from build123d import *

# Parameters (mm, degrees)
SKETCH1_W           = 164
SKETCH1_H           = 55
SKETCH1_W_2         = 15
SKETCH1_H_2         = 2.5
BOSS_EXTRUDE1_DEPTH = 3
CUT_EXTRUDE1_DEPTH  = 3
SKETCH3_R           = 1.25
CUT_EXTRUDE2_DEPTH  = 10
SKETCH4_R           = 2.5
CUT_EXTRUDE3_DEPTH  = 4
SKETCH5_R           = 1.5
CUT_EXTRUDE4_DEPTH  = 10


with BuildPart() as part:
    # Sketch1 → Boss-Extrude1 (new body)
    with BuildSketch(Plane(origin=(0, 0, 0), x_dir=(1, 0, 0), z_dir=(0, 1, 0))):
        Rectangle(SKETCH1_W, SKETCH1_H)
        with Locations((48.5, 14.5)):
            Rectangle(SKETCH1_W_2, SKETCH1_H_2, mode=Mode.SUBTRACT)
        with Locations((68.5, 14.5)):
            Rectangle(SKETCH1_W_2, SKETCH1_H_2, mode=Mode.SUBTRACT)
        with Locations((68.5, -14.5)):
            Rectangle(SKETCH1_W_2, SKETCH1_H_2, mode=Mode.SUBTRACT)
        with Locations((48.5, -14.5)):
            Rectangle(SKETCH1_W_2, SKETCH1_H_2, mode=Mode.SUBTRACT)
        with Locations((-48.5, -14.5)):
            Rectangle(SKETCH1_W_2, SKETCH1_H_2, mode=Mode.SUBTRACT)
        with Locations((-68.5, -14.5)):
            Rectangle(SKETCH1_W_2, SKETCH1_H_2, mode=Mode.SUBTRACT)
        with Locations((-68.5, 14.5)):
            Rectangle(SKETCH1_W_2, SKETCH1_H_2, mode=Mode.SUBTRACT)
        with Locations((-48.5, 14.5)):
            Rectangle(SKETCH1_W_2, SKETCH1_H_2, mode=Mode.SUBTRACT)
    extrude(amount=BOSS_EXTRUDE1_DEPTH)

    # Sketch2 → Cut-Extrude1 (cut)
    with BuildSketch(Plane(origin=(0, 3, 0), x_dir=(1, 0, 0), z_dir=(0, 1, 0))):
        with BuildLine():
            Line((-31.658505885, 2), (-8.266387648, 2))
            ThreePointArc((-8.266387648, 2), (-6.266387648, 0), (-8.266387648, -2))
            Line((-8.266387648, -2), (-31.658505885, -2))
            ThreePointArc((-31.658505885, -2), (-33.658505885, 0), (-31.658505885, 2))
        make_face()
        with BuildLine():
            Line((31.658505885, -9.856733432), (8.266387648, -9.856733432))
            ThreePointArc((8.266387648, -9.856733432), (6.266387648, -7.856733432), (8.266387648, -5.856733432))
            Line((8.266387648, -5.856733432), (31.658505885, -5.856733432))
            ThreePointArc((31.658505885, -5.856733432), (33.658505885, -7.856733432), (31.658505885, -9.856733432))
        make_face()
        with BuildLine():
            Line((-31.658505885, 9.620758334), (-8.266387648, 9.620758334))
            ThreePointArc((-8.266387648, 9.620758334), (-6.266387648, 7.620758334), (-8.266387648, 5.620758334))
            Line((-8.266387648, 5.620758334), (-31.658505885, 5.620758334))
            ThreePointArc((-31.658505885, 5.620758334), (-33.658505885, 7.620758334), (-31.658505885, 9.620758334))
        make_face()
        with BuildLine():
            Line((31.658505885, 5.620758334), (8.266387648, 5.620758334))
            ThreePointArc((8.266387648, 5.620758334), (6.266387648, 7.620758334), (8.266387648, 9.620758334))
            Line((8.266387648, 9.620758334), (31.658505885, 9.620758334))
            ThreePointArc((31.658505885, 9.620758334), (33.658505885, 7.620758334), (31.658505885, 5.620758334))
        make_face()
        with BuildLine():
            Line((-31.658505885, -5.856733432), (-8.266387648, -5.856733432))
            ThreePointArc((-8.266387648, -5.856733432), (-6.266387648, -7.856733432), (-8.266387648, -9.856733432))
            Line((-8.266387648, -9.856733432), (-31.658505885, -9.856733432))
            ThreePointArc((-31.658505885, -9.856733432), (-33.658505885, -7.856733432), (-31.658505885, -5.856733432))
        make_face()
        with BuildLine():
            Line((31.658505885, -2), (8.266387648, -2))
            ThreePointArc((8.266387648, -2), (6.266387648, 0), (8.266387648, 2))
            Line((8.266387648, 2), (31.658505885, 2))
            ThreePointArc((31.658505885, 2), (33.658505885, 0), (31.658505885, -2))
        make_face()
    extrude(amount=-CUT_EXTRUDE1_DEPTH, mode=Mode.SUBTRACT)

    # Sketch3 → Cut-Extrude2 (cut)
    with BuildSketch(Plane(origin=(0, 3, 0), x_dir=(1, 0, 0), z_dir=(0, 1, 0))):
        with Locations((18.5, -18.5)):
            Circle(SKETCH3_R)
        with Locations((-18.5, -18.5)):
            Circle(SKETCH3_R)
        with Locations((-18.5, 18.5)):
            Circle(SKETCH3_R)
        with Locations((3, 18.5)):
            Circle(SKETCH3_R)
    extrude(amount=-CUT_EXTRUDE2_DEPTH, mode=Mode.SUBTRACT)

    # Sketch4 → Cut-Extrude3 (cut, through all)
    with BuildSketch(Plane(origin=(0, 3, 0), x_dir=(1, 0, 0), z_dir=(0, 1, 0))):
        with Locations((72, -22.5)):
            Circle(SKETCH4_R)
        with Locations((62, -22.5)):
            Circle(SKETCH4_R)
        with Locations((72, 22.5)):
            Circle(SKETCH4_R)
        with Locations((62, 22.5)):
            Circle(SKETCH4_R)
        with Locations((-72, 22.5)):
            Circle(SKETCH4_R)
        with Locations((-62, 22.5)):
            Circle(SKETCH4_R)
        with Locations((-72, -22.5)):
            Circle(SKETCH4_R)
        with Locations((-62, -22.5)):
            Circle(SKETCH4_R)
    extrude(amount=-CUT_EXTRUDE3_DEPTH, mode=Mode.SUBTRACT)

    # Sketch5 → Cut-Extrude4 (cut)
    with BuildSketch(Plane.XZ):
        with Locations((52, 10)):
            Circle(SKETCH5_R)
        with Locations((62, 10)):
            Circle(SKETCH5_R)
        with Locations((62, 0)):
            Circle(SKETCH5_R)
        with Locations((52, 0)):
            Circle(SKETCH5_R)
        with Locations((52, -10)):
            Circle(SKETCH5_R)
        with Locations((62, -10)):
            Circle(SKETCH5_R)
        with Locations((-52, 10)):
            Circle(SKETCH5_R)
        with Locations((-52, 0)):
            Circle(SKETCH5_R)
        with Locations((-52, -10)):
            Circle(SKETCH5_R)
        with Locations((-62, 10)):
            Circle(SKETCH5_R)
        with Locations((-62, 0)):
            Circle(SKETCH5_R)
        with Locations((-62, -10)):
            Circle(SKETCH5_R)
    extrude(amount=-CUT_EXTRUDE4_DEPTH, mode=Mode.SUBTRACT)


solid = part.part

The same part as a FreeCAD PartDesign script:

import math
import FreeCAD as App
import Part
import Sketcher

V = App.Vector
Q = App.Units.Quantity

doc = App.newDocument("Part")
body = doc.addObject("PartDesign::Body", "Body")

# Sketch on XZ plane
sketch1 = body.newObject("Sketcher::SketchObject", "Sketch")
sketch1.AttachmentSupport = (doc.getObject("XZ_Plane"), [""])
sketch1.MapMode = "FlatFace"
sketch1.addGeometry(Part.LineSegment(V(-82, -27.5, 0), V(-82, 27.5, 0)), False)
sketch1.addGeometry(Part.LineSegment(V(-82, 27.5, 0), V(82, 27.5, 0)), False)
sketch1.addGeometry(Part.LineSegment(V(82, 27.5, 0), V(82, -27.5, 0)), False)
sketch1.addGeometry(Part.LineSegment(V(82, -27.5, 0), V(-82, -27.5, 0)), False)
sketch1.addGeometry(Part.LineSegment(V(-61, 15.8, 0), V(-76, 15.8, 0)), False)
sketch1.addGeometry(Part.LineSegment(V(-76, 15.8, 0), V(-76, 13.2, 0)), False)
sketch1.addGeometry(Part.LineSegment(V(-76, 13.2, 0), V(-61, 13.2, 0)), False)
sketch1.addGeometry(Part.LineSegment(V(-61, 13.2, 0), V(-61, 15.8, 0)), False)
sketch1.addGeometry(Part.LineSegment(V(-41, 15.8, 0), V(-56, 15.8, 0)), False)
sketch1.addGeometry(Part.LineSegment(V(-56, 15.8, 0), V(-56, 13.2, 0)), False)
sketch1.addGeometry(Part.LineSegment(V(-56, 13.2, 0), V(-41, 13.2, 0)), False)
sketch1.addGeometry(Part.LineSegment(V(-41, 13.2, 0), V(-41, 15.8, 0)), False)
sketch1.addGeometry(Part.LineSegment(V(56, 15.8, 0), V(41, 15.8, 0)), False)
sketch1.addGeometry(Part.LineSegment(V(41, 15.8, 0), V(41, 13.2, 0)), False)
sketch1.addGeometry(Part.LineSegment(V(41, 13.2, 0), V(56, 13.2, 0)), False)
sketch1.addGeometry(Part.LineSegment(V(56, 13.2, 0), V(56, 15.8, 0)), False)
sketch1.addGeometry(Part.LineSegment(V(76, 15.8, 0), V(61, 15.8, 0)), False)
sketch1.addGeometry(Part.LineSegment(V(61, 15.8, 0), V(61, 13.2, 0)), False)
sketch1.addGeometry(Part.LineSegment(V(61, 13.2, 0), V(76, 13.2, 0)), False)
sketch1.addGeometry(Part.LineSegment(V(76, 13.2, 0), V(76, 15.8, 0)), False)
sketch1.addGeometry(Part.LineSegment(V(-61, -13.2, 0), V(-76, -13.2, 0)), False)
sketch1.addGeometry(Part.LineSegment(V(-76, -13.2, 0), V(-76, -15.8, 0)), False)
sketch1.addGeometry(Part.LineSegment(V(-76, -15.8, 0), V(-61, -15.8, 0)), False)
sketch1.addGeometry(Part.LineSegment(V(-61, -15.8, 0), V(-61, -13.2, 0)), False)
sketch1.addGeometry(Part.LineSegment(V(-41, -13.2, 0), V(-56, -13.2, 0)), False)
sketch1.addGeometry(Part.LineSegment(V(-56, -13.2, 0), V(-56, -15.8, 0)), False)
sketch1.addGeometry(Part.LineSegment(V(-56, -15.8, 0), V(-41, -15.8, 0)), False)
sketch1.addGeometry(Part.LineSegment(V(-41, -15.8, 0), V(-41, -13.2, 0)), False)
sketch1.addGeometry(Part.LineSegment(V(56, -13.2, 0), V(41, -13.2, 0)), False)
sketch1.addGeometry(Part.LineSegment(V(41, -13.2, 0), V(41, -15.8, 0)), False)
sketch1.addGeometry(Part.LineSegment(V(41, -15.8, 0), V(56, -15.8, 0)), False)
sketch1.addGeometry(Part.LineSegment(V(56, -15.8, 0), V(56, -13.2, 0)), False)
sketch1.addGeometry(Part.LineSegment(V(76, -13.2, 0), V(61, -13.2, 0)), False)
sketch1.addGeometry(Part.LineSegment(V(61, -13.2, 0), V(61, -15.8, 0)), False)
sketch1.addGeometry(Part.LineSegment(V(61, -15.8, 0), V(76, -15.8, 0)), False)
sketch1.addGeometry(Part.LineSegment(V(76, -15.8, 0), V(76, -13.2, 0)), False)
sketch1.addConstraint(Sketcher.Constraint("Coincident", 0, 2, 1, 1))
sketch1.addConstraint(Sketcher.Constraint("Coincident", 1, 2, 2, 1))
sketch1.addConstraint(Sketcher.Constraint("Coincident", 2, 2, 3, 1))
sketch1.addConstraint(Sketcher.Constraint("Coincident", 3, 2, 0, 1))
sketch1.addConstraint(Sketcher.Constraint("Coincident", 4, 2, 5, 1))
sketch1.addConstraint(Sketcher.Constraint("Coincident", 5, 2, 6, 1))
sketch1.addConstraint(Sketcher.Constraint("Coincident", 6, 2, 7, 1))
sketch1.addConstraint(Sketcher.Constraint("Coincident", 7, 2, 4, 1))
sketch1.addConstraint(Sketcher.Constraint("Coincident", 8, 2, 9, 1))
sketch1.addConstraint(Sketcher.Constraint("Coincident", 9, 2, 10, 1))
sketch1.addConstraint(Sketcher.Constraint("Coincident", 10, 2, 11, 1))
sketch1.addConstraint(Sketcher.Constraint("Coincident", 11, 2, 8, 1))
sketch1.addConstraint(Sketcher.Constraint("Coincident", 12, 2, 13, 1))
sketch1.addConstraint(Sketcher.Constraint("Coincident", 13, 2, 14, 1))
sketch1.addConstraint(Sketcher.Constraint("Coincident", 14, 2, 15, 1))
sketch1.addConstraint(Sketcher.Constraint("Coincident", 15, 2, 12, 1))
sketch1.addConstraint(Sketcher.Constraint("Coincident", 16, 2, 17, 1))
sketch1.addConstraint(Sketcher.Constraint("Coincident", 17, 2, 18, 1))
sketch1.addConstraint(Sketcher.Constraint("Coincident", 18, 2, 19, 1))
sketch1.addConstraint(Sketcher.Constraint("Coincident", 19, 2, 16, 1))
sketch1.addConstraint(Sketcher.Constraint("Coincident", 20, 2, 21, 1))
sketch1.addConstraint(Sketcher.Constraint("Coincident", 21, 2, 22, 1))
sketch1.addConstraint(Sketcher.Constraint("Coincident", 22, 2, 23, 1))
sketch1.addConstraint(Sketcher.Constraint("Coincident", 23, 2, 20, 1))
sketch1.addConstraint(Sketcher.Constraint("Coincident", 24, 2, 25, 1))
sketch1.addConstraint(Sketcher.Constraint("Coincident", 25, 2, 26, 1))
sketch1.addConstraint(Sketcher.Constraint("Coincident", 26, 2, 27, 1))
sketch1.addConstraint(Sketcher.Constraint("Coincident", 27, 2, 24, 1))
sketch1.addConstraint(Sketcher.Constraint("Coincident", 28, 2, 29, 1))
sketch1.addConstraint(Sketcher.Constraint("Coincident", 29, 2, 30, 1))
sketch1.addConstraint(Sketcher.Constraint("Coincident", 30, 2, 31, 1))
sketch1.addConstraint(Sketcher.Constraint("Coincident", 31, 2, 28, 1))
sketch1.addConstraint(Sketcher.Constraint("Coincident", 32, 2, 33, 1))
sketch1.addConstraint(Sketcher.Constraint("Coincident", 33, 2, 34, 1))
sketch1.addConstraint(Sketcher.Constraint("Coincident", 34, 2, 35, 1))
sketch1.addConstraint(Sketcher.Constraint("Coincident", 35, 2, 32, 1))
sketch1.addConstraint(Sketcher.Constraint("Vertical", 0))
sketch1.addConstraint(Sketcher.Constraint("Horizontal", 1))
sketch1.addConstraint(Sketcher.Constraint("Vertical", 2))
sketch1.addConstraint(Sketcher.Constraint("Horizontal", 3))
sketch1.addConstraint(Sketcher.Constraint("Horizontal", 4))
sketch1.addConstraint(Sketcher.Constraint("Vertical", 5))
sketch1.addConstraint(Sketcher.Constraint("Horizontal", 6))
sketch1.addConstraint(Sketcher.Constraint("Vertical", 7))
sketch1.addConstraint(Sketcher.Constraint("Horizontal", 8))
sketch1.addConstraint(Sketcher.Constraint("Vertical", 9))
sketch1.addConstraint(Sketcher.Constraint("Horizontal", 10))
sketch1.addConstraint(Sketcher.Constraint("Vertical", 11))
sketch1.addConstraint(Sketcher.Constraint("Horizontal", 12))
sketch1.addConstraint(Sketcher.Constraint("Vertical", 13))
sketch1.addConstraint(Sketcher.Constraint("Horizontal", 14))
sketch1.addConstraint(Sketcher.Constraint("Vertical", 15))
sketch1.addConstraint(Sketcher.Constraint("Horizontal", 16))
sketch1.addConstraint(Sketcher.Constraint("Vertical", 17))
sketch1.addConstraint(Sketcher.Constraint("Horizontal", 18))
sketch1.addConstraint(Sketcher.Constraint("Vertical", 19))
sketch1.addConstraint(Sketcher.Constraint("Horizontal", 20))
sketch1.addConstraint(Sketcher.Constraint("Vertical", 21))
sketch1.addConstraint(Sketcher.Constraint("Horizontal", 22))
sketch1.addConstraint(Sketcher.Constraint("Vertical", 23))
sketch1.addConstraint(Sketcher.Constraint("Horizontal", 24))
sketch1.addConstraint(Sketcher.Constraint("Vertical", 25))
sketch1.addConstraint(Sketcher.Constraint("Horizontal", 26))
sketch1.addConstraint(Sketcher.Constraint("Vertical", 27))
sketch1.addConstraint(Sketcher.Constraint("Horizontal", 28))
sketch1.addConstraint(Sketcher.Constraint("Vertical", 29))
sketch1.addConstraint(Sketcher.Constraint("Horizontal", 30))
sketch1.addConstraint(Sketcher.Constraint("Vertical", 31))
sketch1.addConstraint(Sketcher.Constraint("Horizontal", 32))
sketch1.addConstraint(Sketcher.Constraint("Vertical", 33))
sketch1.addConstraint(Sketcher.Constraint("Horizontal", 34))
sketch1.addConstraint(Sketcher.Constraint("Vertical", 35))
sketch1.addConstraint(Sketcher.Constraint("Symmetric", 0, 2, 2, 2, -1, 1))
sketch1.addConstraint(Sketcher.Constraint("Symmetric", 18, 2, 20, 2, -1, 1))
sketch1.addConstraint(Sketcher.Constraint("Symmetric", 16, 2, 22, 2, -1, 1))
sketch1.addConstraint(Sketcher.Constraint("Symmetric", 14, 2, 24, 2, -1, 1))
sketch1.addConstraint(Sketcher.Constraint("Symmetric", 12, 2, 26, 2, -1, 1))
sketch1.addConstraint(Sketcher.Constraint("Symmetric", 10, 2, 28, 2, -1, 1))
sketch1.addConstraint(Sketcher.Constraint("Symmetric", 8, 2, 30, 2, -1, 1))
sketch1.addConstraint(Sketcher.Constraint("Symmetric", 6, 2, 32, 2, -1, 1))
sketch1.addConstraint(Sketcher.Constraint("Symmetric", 4, 2, 34, 2, -1, 1))
sketch1.addConstraint(Sketcher.Constraint("Symmetric", 11, 2, 12, 2, -2))
sketch1.addConstraint(Sketcher.Constraint("Symmetric", 9, 2, 14, 2, -2))
sketch1.addConstraint(Sketcher.Constraint("Symmetric", 7, 2, 16, 2, -2))
sketch1.addConstraint(Sketcher.Constraint("Symmetric", 5, 2, 18, 2, -2))
sketch1.addConstraint(Sketcher.Constraint("Horizontal", 7, 2, 8, 2))
sketch1.addConstraint(Sketcher.Constraint("Horizontal", 6, 2, 9, 2))
sketch1.addConstraint(Sketcher.Constraint("Equal", 6, 8))
sketch1.addConstraint(Sketcher.Constraint("DistanceX", 1, 1, 1, 2, Q("164 mm")))
sketch1.addConstraint(Sketcher.Constraint("DistanceX", 4, 2, 4, 1, Q("15 mm")))
sketch1.addConstraint(Sketcher.Constraint("DistanceY", 0, 1, 0, 2, Q("55 mm")))
sketch1.addConstraint(Sketcher.Constraint("DistanceY", 5, 2, 5, 1, Q("2.5 mm")))
sketch1.addConstraint(Sketcher.Constraint("DistanceX", 4, 2, -1, 1, Q("76 mm")))
sketch1.addConstraint(Sketcher.Constraint("DistanceX", 8, 2, -1, 1, Q("56 mm")))
sketch1.addConstraint(Sketcher.Constraint("DistanceY", 20, 2, 4, 2, Q("29 mm")))
pad1 = body.newObject("PartDesign::Pad", "Pad")
pad1.Profile = sketch1
pad1.Length = 3
pad1.Reversed = True

# Sketch on XZ plane
sketch2 = body.newObject("Sketcher::SketchObject", "Sketch001")
sketch2.AttachmentSupport = (doc.getObject("XZ_Plane"), [""])
sketch2.MapMode = "FlatFace"
sketch2.AttachmentOffset = App.Placement(V(0, 0, -3), App.Rotation())
sketch2.addGeometry(Part.LineSegment(V(-8.3, -2, 0), V(-31.7, -2, 0)), False)
sketch2.addGeometry(Part.ArcOfCircle(Part.Circle(V(-31.7, 0, 0), V(0, 0, 1), 2), math.radians(90), math.radians(270)), False)
sketch2.addGeometry(Part.LineSegment(V(-31.7, 2, 0), V(-8.3, 2, 0)), False)
sketch2.addGeometry(Part.ArcOfCircle(Part.Circle(V(-8.3, 0, 0), V(0, 0, 1), 2), math.radians(-90), math.radians(90)), False)
sketch2.addGeometry(Part.LineSegment(V(8.3, 9.9, 0), V(31.7, 9.9, 0)), False)
sketch2.addGeometry(Part.ArcOfCircle(Part.Circle(V(31.7, 7.9, 0), V(0, 0, 1), 2), math.radians(-90), math.radians(90)), False)
sketch2.addGeometry(Part.LineSegment(V(31.7, 5.9, 0), V(8.3, 5.9, 0)), False)
sketch2.addGeometry(Part.ArcOfCircle(Part.Circle(V(8.3, 7.9, 0), V(0, 0, 1), 2), math.radians(90), math.radians(270)), False)
sketch2.addGeometry(Part.LineSegment(V(-8.3, -9.6, 0), V(-31.7, -9.6, 0)), False)
sketch2.addGeometry(Part.ArcOfCircle(Part.Circle(V(-31.7, -7.6, 0), V(0, 0, 1), 2), math.radians(90), math.radians(270)), False)
sketch2.addGeometry(Part.LineSegment(V(-31.7, -5.6, 0), V(-8.3, -5.6, 0)), False)
sketch2.addGeometry(Part.ArcOfCircle(Part.Circle(V(-8.3, -7.6, 0), V(0, 0, 1), 2), math.radians(-90), math.radians(90)), False)
sketch2.addGeometry(Part.LineSegment(V(8.3, -5.6, 0), V(31.7, -5.6, 0)), False)
sketch2.addGeometry(Part.ArcOfCircle(Part.Circle(V(31.7, -7.6, 0), V(0, 0, 1), 2), math.radians(-90), math.radians(90)), False)
sketch2.addGeometry(Part.LineSegment(V(31.7, -9.6, 0), V(8.3, -9.6, 0)), False)
sketch2.addGeometry(Part.ArcOfCircle(Part.Circle(V(8.3, -7.6, 0), V(0, 0, 1), 2), math.radians(90), math.radians(270)), False)
sketch2.addGeometry(Part.LineSegment(V(-8.3, 5.9, 0), V(-31.7, 5.9, 0)), False)
sketch2.addGeometry(Part.ArcOfCircle(Part.Circle(V(-31.7, 7.9, 0), V(0, 0, 1), 2), math.radians(90), math.radians(270)), False)
sketch2.addGeometry(Part.LineSegment(V(-31.7, 9.9, 0), V(-8.3, 9.9, 0)), False)
sketch2.addGeometry(Part.ArcOfCircle(Part.Circle(V(-8.3, 7.9, 0), V(0, 0, 1), 2), math.radians(-90), math.radians(90)), False)
sketch2.addGeometry(Part.LineSegment(V(8.3, 2, 0), V(31.7, 2, 0)), False)
sketch2.addGeometry(Part.ArcOfCircle(Part.Circle(V(31.7, 0, 0), V(0, 0, 1), 2), math.radians(-90), math.radians(90)), False)
sketch2.addGeometry(Part.LineSegment(V(31.7, -2, 0), V(8.3, -2, 0)), False)
sketch2.addGeometry(Part.ArcOfCircle(Part.Circle(V(8.3, 0, 0), V(0, 0, 1), 2), math.radians(90), math.radians(270)), False)
sketch2.addConstraint(Sketcher.Constraint("Tangent", 0, 2, 1, 2))
sketch2.addConstraint(Sketcher.Constraint("Tangent", 1, 1, 2, 1))
sketch2.addConstraint(Sketcher.Constraint("Tangent", 2, 2, 3, 2))
sketch2.addConstraint(Sketcher.Constraint("Tangent", 3, 1, 0, 1))
sketch2.addConstraint(Sketcher.Constraint("Tangent", 4, 2, 5, 2))
sketch2.addConstraint(Sketcher.Constraint("Tangent", 5, 1, 6, 1))
sketch2.addConstraint(Sketcher.Constraint("Tangent", 6, 2, 7, 2))
sketch2.addConstraint(Sketcher.Constraint("Tangent", 7, 1, 4, 1))
sketch2.addConstraint(Sketcher.Constraint("Tangent", 8, 2, 9, 2))
sketch2.addConstraint(Sketcher.Constraint("Tangent", 9, 1, 10, 1))
sketch2.addConstraint(Sketcher.Constraint("Tangent", 10, 2, 11, 2))
sketch2.addConstraint(Sketcher.Constraint("Tangent", 11, 1, 8, 1))
sketch2.addConstraint(Sketcher.Constraint("Tangent", 12, 2, 13, 2))
sketch2.addConstraint(Sketcher.Constraint("Tangent", 13, 1, 14, 1))
sketch2.addConstraint(Sketcher.Constraint("Tangent", 14, 2, 15, 2))
sketch2.addConstraint(Sketcher.Constraint("Tangent", 15, 1, 12, 1))
sketch2.addConstraint(Sketcher.Constraint("Tangent", 16, 2, 17, 2))
sketch2.addConstraint(Sketcher.Constraint("Tangent", 17, 1, 18, 1))
sketch2.addConstraint(Sketcher.Constraint("Tangent", 18, 2, 19, 2))
sketch2.addConstraint(Sketcher.Constraint("Tangent", 19, 1, 16, 1))
sketch2.addConstraint(Sketcher.Constraint("Tangent", 20, 2, 21, 2))
sketch2.addConstraint(Sketcher.Constraint("Tangent", 21, 1, 22, 1))
sketch2.addConstraint(Sketcher.Constraint("Tangent", 22, 2, 23, 2))
sketch2.addConstraint(Sketcher.Constraint("Tangent", 23, 1, 20, 1))
sketch2.addConstraint(Sketcher.Constraint("Horizontal", 0))
sketch2.addConstraint(Sketcher.Constraint("Horizontal", 2))
sketch2.addConstraint(Sketcher.Constraint("Horizontal", 4))
sketch2.addConstraint(Sketcher.Constraint("Horizontal", 6))
sketch2.addConstraint(Sketcher.Constraint("Horizontal", 8))
sketch2.addConstraint(Sketcher.Constraint("Horizontal", 10))
sketch2.addConstraint(Sketcher.Constraint("Horizontal", 12))
sketch2.addConstraint(Sketcher.Constraint("Horizontal", 14))
sketch2.addConstraint(Sketcher.Constraint("Horizontal", 16))
sketch2.addConstraint(Sketcher.Constraint("Horizontal", 18))
sketch2.addConstraint(Sketcher.Constraint("Horizontal", 20))
sketch2.addConstraint(Sketcher.Constraint("Horizontal", 22))
sketch2.addConstraint(Sketcher.Constraint("Equal", 3, 5))
sketch2.addConstraint(Sketcher.Constraint("Equal", 7, 9))
sketch2.addConstraint(Sketcher.Constraint("Equal", 11, 13))
sketch2.addConstraint(Sketcher.Constraint("Equal", 15, 17))
sketch2.addConstraint(Sketcher.Constraint("Equal", 19, 21))
sketch2.addConstraint(Sketcher.Constraint("Symmetric", 1, 3, 21, 3, -1, 1))
sketch2.addConstraint(Sketcher.Constraint("Symmetric", 9, 3, 13, 3, -2))
sketch2.addConstraint(Sketcher.Constraint("Symmetric", 5, 3, 17, 3, -2))
sketch2.addConstraint(Sketcher.Constraint("Symmetric", 3, 3, 23, 3, -2))
sketch2.addConstraint(Sketcher.Constraint("Vertical", 1, 3, 9, 3))
sketch2.addConstraint(Sketcher.Constraint("Vertical", 3, 3, 11, 3))
sketch2.addConstraint(Sketcher.Constraint("Vertical", 5, 3, 13, 3))
sketch2.addConstraint(Sketcher.Constraint("Vertical", 7, 3, 15, 3))
sketch2.addConstraint(Sketcher.Constraint("Vertical", 11, 3, 19, 3))
sketch2.addConstraint(Sketcher.Constraint("Vertical", 15, 3, 23, 3))
sketch2.addConstraint(Sketcher.Constraint("Radius", 1, Q("2 mm")))
sketch2.addConstraint(Sketcher.Constraint("DistanceX", 0, 2, 0, 1, Q("23.392118 mm")))
sketch2.addConstraint(Sketcher.Constraint("DistanceY", 9, 3, -1, 1, Q("7.620758 mm")))
sketch2.addConstraint(Sketcher.Constraint("DistanceX", 1, 3, 5, 3, Q("63.317012 mm")))
sketch2.addConstraint(Sketcher.Constraint("DistanceY", 9, 3, 7, 3, Q("15.477492 mm")))
pocket1 = body.newObject("PartDesign::Pocket", "Pocket")
pocket1.Profile = sketch2
pocket1.Length = 3
pocket1.Reversed = True

# Sketch on XZ plane
sketch3 = body.newObject("Sketcher::SketchObject", "Sketch002")
sketch3.AttachmentSupport = (doc.getObject("XZ_Plane"), [""])
sketch3.MapMode = "FlatFace"
sketch3.AttachmentOffset = App.Placement(V(0, 0, -3), App.Rotation())
sketch3.addGeometry(Part.Circle(V(18.5, 18.5, 0), V(0, 0, 1), 1.2), False)
sketch3.addGeometry(Part.Circle(V(-18.5, 18.5, 0), V(0, 0, 1), 1.2), False)
sketch3.addGeometry(Part.Circle(V(-18.5, -18.5, 0), V(0, 0, 1), 1.2), False)
sketch3.addGeometry(Part.Circle(V(3, -18.5, 0), V(0, 0, 1), 1.2), False)
sketch3.addConstraint(Sketcher.Constraint("Equal", 0, 1))
sketch3.addConstraint(Sketcher.Constraint("Equal", 1, 2))
sketch3.addConstraint(Sketcher.Constraint("Equal", 2, 3))
sketch3.addConstraint(Sketcher.Constraint("Symmetric", 0, 3, 2, 3, -1, 1))
sketch3.addConstraint(Sketcher.Constraint("Symmetric", 0, 3, 1, 3, -2))
sketch3.addConstraint(Sketcher.Constraint("Horizontal", 2, 3, 3, 3))
sketch3.addConstraint(Sketcher.Constraint("Diameter", 0, Q("2.5 mm")))
sketch3.addConstraint(Sketcher.Constraint("DistanceX", -1, 1, 3, 3, Q("3 mm")))
sketch3.addConstraint(Sketcher.Constraint("DistanceX", 1, 3, 0, 3, Q("37 mm")))
sketch3.addConstraint(Sketcher.Constraint("DistanceY", 2, 3, 1, 3, Q("37 mm")))
pocket2 = body.newObject("PartDesign::Pocket", "Pocket001")
pocket2.Profile = sketch3
pocket2.Length = 10
pocket2.Reversed = True

# Sketch on XZ plane
sketch4 = body.newObject("Sketcher::SketchObject", "Sketch003")
sketch4.AttachmentSupport = (doc.getObject("XZ_Plane"), [""])
sketch4.MapMode = "FlatFace"
sketch4.AttachmentOffset = App.Placement(V(0, 0, -3), App.Rotation())
sketch4.addGeometry(Part.Circle(V(72, 22.5, 0), V(0, 0, 1), 2.5), False)
sketch4.addGeometry(Part.Circle(V(62, 22.5, 0), V(0, 0, 1), 2.5), False)
sketch4.addGeometry(Part.Circle(V(72, -22.5, 0), V(0, 0, 1), 2.5), False)
sketch4.addGeometry(Part.Circle(V(62, -22.5, 0), V(0, 0, 1), 2.5), False)
sketch4.addGeometry(Part.Circle(V(-72, -22.5, 0), V(0, 0, 1), 2.5), False)
sketch4.addGeometry(Part.Circle(V(-62, -22.5, 0), V(0, 0, 1), 2.5), False)
sketch4.addGeometry(Part.Circle(V(-72, 22.5, 0), V(0, 0, 1), 2.5), False)
sketch4.addGeometry(Part.Circle(V(-62, 22.5, 0), V(0, 0, 1), 2.5), False)
sketch4.addConstraint(Sketcher.Constraint("Equal", 0, 1))
sketch4.addConstraint(Sketcher.Constraint("Equal", 1, 2))
sketch4.addConstraint(Sketcher.Constraint("Equal", 2, 3))
sketch4.addConstraint(Sketcher.Constraint("Equal", 3, 4))
sketch4.addConstraint(Sketcher.Constraint("Equal", 4, 5))
sketch4.addConstraint(Sketcher.Constraint("Equal", 5, 6))
sketch4.addConstraint(Sketcher.Constraint("Equal", 6, 7))
sketch4.addConstraint(Sketcher.Constraint("Symmetric", 0, 3, 4, 3, -1, 1))
sketch4.addConstraint(Sketcher.Constraint("Symmetric", 1, 3, 5, 3, -1, 1))
sketch4.addConstraint(Sketcher.Constraint("Symmetric", 2, 3, 6, 3, -1, 1))
sketch4.addConstraint(Sketcher.Constraint("Symmetric", 3, 3, 7, 3, -1, 1))
sketch4.addConstraint(Sketcher.Constraint("Symmetric", 2, 3, 4, 3, -2))
sketch4.addConstraint(Sketcher.Constraint("Symmetric", 3, 3, 5, 3, -2))
sketch4.addConstraint(Sketcher.Constraint("Horizontal", 0, 3, 1, 3))
sketch4.addConstraint(Sketcher.Constraint("Diameter", 0, Q("5 mm")))
sketch4.addConstraint(Sketcher.Constraint("DistanceX", -1, 1, 0, 3, Q("72 mm")))
sketch4.addConstraint(Sketcher.Constraint("DistanceX", -1, 1, 1, 3, Q("62 mm")))
sketch4.addConstraint(Sketcher.Constraint("DistanceY", 2, 3, 0, 3, Q("45 mm")))
pocket3 = body.newObject("PartDesign::Pocket", "Pocket002")
pocket3.Profile = sketch4
pocket3.Type = "ThroughAll"
pocket3.Reversed = True

# Sketch on XZ plane
sketch5 = body.newObject("Sketcher::SketchObject", "Sketch004")
sketch5.AttachmentSupport = (doc.getObject("XZ_Plane"), [""])
sketch5.MapMode = "FlatFace"
sketch5.addGeometry(Part.Circle(V(52, 10, 0), V(0, 0, 1), 1.5), False)
sketch5.addGeometry(Part.Circle(V(62, 10, 0), V(0, 0, 1), 1.5), False)
sketch5.addGeometry(Part.Circle(V(62, 0, 0), V(0, 0, 1), 1.5), False)
sketch5.addGeometry(Part.Circle(V(52, 0, 0), V(0, 0, 1), 1.5), False)
sketch5.addGeometry(Part.Circle(V(52, -10, 0), V(0, 0, 1), 1.5), False)
sketch5.addGeometry(Part.Circle(V(62, -10, 0), V(0, 0, 1), 1.5), False)
sketch5.addGeometry(Part.Circle(V(-52, 10, 0), V(0, 0, 1), 1.5), False)
sketch5.addGeometry(Part.Circle(V(-52, 0, 0), V(0, 0, 1), 1.5), False)
sketch5.addGeometry(Part.Circle(V(-52, -10, 0), V(0, 0, 1), 1.5), False)
sketch5.addGeometry(Part.Circle(V(-62, 10, 0), V(0, 0, 1), 1.5), False)
sketch5.addGeometry(Part.Circle(V(-62, 0, 0), V(0, 0, 1), 1.5), False)
sketch5.addGeometry(Part.Circle(V(-62, -10, 0), V(0, 0, 1), 1.5), False)
sketch5.addConstraint(Sketcher.Constraint("Equal", 0, 1))
sketch5.addConstraint(Sketcher.Constraint("Equal", 1, 2))
sketch5.addConstraint(Sketcher.Constraint("Equal", 2, 3))
sketch5.addConstraint(Sketcher.Constraint("Equal", 3, 4))
sketch5.addConstraint(Sketcher.Constraint("Equal", 4, 5))
sketch5.addConstraint(Sketcher.Constraint("Equal", 5, 6))
sketch5.addConstraint(Sketcher.Constraint("Equal", 6, 7))
sketch5.addConstraint(Sketcher.Constraint("Equal", 7, 8))
sketch5.addConstraint(Sketcher.Constraint("Equal", 8, 9))
sketch5.addConstraint(Sketcher.Constraint("Equal", 9, 10))
sketch5.addConstraint(Sketcher.Constraint("Equal", 10, 11))
sketch5.addConstraint(Sketcher.Constraint("Symmetric", 4, 3, 6, 3, -1, 1))
sketch5.addConstraint(Sketcher.Constraint("Symmetric", 3, 3, 7, 3, -1, 1))
sketch5.addConstraint(Sketcher.Constraint("Symmetric", 0, 3, 8, 3, -1, 1))
sketch5.addConstraint(Sketcher.Constraint("Symmetric", 5, 3, 9, 3, -1, 1))
sketch5.addConstraint(Sketcher.Constraint("Symmetric", 2, 3, 10, 3, -1, 1))
sketch5.addConstraint(Sketcher.Constraint("Symmetric", 1, 3, 11, 3, -1, 1))
sketch5.addConstraint(Sketcher.Constraint("Symmetric", 0, 3, 6, 3, -2))
sketch5.addConstraint(Sketcher.Constraint("Symmetric", 1, 3, 9, 3, -2))
sketch5.addConstraint(Sketcher.Constraint("PointOnObject", 2, 3, -1))
sketch5.addConstraint(Sketcher.Constraint("PointOnObject", 3, 3, -1))
sketch5.addConstraint(Sketcher.Constraint("Horizontal", 0, 3, 1, 3))
sketch5.addConstraint(Sketcher.Constraint("Vertical", 1, 3, 2, 3))
sketch5.addConstraint(Sketcher.Constraint("Vertical", 0, 3, 3, 3))
sketch5.addConstraint(Sketcher.Constraint("Diameter", 0, Q("3 mm")))
sketch5.addConstraint(Sketcher.Constraint("DistanceX", -1, 1, 0, 3, Q("52 mm")))
sketch5.addConstraint(Sketcher.Constraint("DistanceY", -1, 1, 0, 3, Q("10 mm")))
sketch5.addConstraint(Sketcher.Constraint("DistanceX", -1, 1, 1, 3, Q("62 mm")))
pocket4 = body.newObject("PartDesign::Pocket", "Pocket003")
pocket4.Profile = sketch5
pocket4.Length = 10

doc.recompute()
